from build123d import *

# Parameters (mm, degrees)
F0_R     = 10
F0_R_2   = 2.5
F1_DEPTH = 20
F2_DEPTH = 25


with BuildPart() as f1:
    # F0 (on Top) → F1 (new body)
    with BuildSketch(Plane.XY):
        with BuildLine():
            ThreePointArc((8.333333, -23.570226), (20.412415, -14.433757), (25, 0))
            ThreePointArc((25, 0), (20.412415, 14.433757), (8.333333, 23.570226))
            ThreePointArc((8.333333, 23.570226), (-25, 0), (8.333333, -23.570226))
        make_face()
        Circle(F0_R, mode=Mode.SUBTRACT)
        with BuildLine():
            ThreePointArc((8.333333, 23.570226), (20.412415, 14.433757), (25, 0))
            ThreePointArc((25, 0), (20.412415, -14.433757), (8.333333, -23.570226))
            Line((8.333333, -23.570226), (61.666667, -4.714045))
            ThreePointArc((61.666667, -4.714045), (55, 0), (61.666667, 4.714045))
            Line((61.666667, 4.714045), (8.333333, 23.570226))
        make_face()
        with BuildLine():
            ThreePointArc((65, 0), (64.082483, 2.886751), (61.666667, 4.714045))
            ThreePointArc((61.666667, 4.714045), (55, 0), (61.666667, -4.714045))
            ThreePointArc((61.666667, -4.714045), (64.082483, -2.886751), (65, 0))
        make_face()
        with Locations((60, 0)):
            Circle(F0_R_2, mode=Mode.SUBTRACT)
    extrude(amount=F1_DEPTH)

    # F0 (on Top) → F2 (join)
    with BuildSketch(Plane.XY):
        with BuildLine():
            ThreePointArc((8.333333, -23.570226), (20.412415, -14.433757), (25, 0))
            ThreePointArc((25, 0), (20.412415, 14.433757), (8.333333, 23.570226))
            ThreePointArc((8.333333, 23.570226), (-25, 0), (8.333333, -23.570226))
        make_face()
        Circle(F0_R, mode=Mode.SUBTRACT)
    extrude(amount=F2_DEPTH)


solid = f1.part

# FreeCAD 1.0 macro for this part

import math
import FreeCAD as App
import Part
import Sketcher

V = App.Vector
Q = App.Units.Quantity

doc = App.newDocument("Part")
body = doc.addObject("PartDesign::Body", "Body")

sketch1 = body.newObject("Sketcher::SketchObject", "Sketch")
sketch1.AttachmentSupport = (doc.getObject("XY_Plane"), [""])
sketch1.MapMode = "FlatFace"
sketch1.addGeometry(Part.ArcOfCircle(Part.Circle(V(0, 0, 0), V(0, 0, 1), 25), math.radians(71), math.radians(289)), False)
sketch1.addGeometry(Part.LineSegment(V(8.3, -23.6, 0), V(61.7, -4.7, 0)), False)
sketch1.addGeometry(Part.ArcOfCircle(Part.Circle(V(60, 0, 0), V(0, 0, 1), 5), math.radians(-71), math.radians(0)), False)
sketch1.addGeometry(Part.ArcOfCircle(Part.Circle(V(60, 0, 0), V(0, 0, 1), 5), math.radians(0), math.radians(71)), False)
sketch1.addGeometry(Part.LineSegment(V(61.7, 4.7, 0), V(8.3, 23.6, 0)), False)
sketch1.addGeometry(Part.Circle(V(0, 0, 0), V(0, 0, 1), 10), False)
sketch1.addGeometry(Part.Circle(V(60, 0, 0), V(0, 0, 1), 2.5), False)
sketch1.addConstraint(Sketcher.Constraint("Tangent", 0, 2, 1, 1))
sketch1.addConstraint(Sketcher.Constraint("Tangent", 1, 2, 2, 1))
sketch1.addConstraint(Sketcher.Constraint("Tangent", 2, 2, 3, 1))
sketch1.addConstraint(Sketcher.Constraint("Tangent", 3, 2, 4, 1))
sketch1.addConstraint(Sketcher.Constraint("Tangent", 4, 2, 0, 1))
sketch1.addConstraint(Sketcher.Constraint("Coincident", 0, 3, -1, 1))
sketch1.addConstraint(Sketcher.Constraint("Coincident", 5, 3, -1, 1))
sketch1.addConstraint(Sketcher.Constraint("Coincident", 6, 3, 2, 3))
sketch1.addConstraint(Sketcher.Constraint("Equal", 2, 3))
sketch1.addConstraint(Sketcher.Constraint("PointOnObject", 2, 3, -1))
sketch1.addConstraint(Sketcher.Constraint("PointOnObject", 2, 2, -1))
sketch1.addConstraint(Sketcher.Constraint("Diameter", 5, Q("20 mm")))
sketch1.addConstraint(Sketcher.Constraint("Diameter", 6, Q("5 mm")))
sketch1.addConstraint(Sketcher.Constraint("Radius", 0, Q("25 mm")))
sketch1.addConstraint(Sketcher.Constraint("Radius", 2, Q("5 mm")))
sketch1.addConstraint(Sketcher.Constraint("DistanceX", -1, 1, 2, 3, Q("60 mm")))
pad1 = body.newObject("PartDesign::Pad", "Pad")
pad1.Profile = sketch1
pad1.Length = 20

sketch2 = body.newObject("Sketcher::SketchObject", "Sketch001")
sketch2.AttachmentSupport = (doc.getObject("XY_Plane"), [""])
sketch2.MapMode = "FlatFace"
sketch2.addGeometry(Part.ArcOfCircle(Part.Circle(V(0, 0, 0), V(0, 0, 1), 25), math.radians(-71), math.radians(0)), False)
sketch2.addGeometry(Part.ArcOfCircle(Part.Circle(V(0, 0, 0), V(0, 0, 1), 25), math.radians(0), math.radians(71)), False)
sketch2.addGeometry(Part.ArcOfCircle(Part.Circle(V(0, 0, 0), V(0, 0, 1), 25), math.radians(71), math.radians(289)), False)
sketch2.addGeometry(Part.Circle(V(0, 0, 0), V(0, 0, 1), 10), False)
sketch2.addConstraint(Sketcher.Constraint("Tangent", 0, 2, 1, 1))
sketch2.addConstraint(Sketcher.Constraint("Tangent", 1, 2, 2, 1))
sketch2.addConstraint(Sketcher.Constraint("Tangent", 2, 2, 0, 1))
sketch2.addConstraint(Sketcher.Constraint("Coincident", 0, 3, -1, 1))
sketch2.addConstraint(Sketcher.Constraint("Coincident", 3, 3, -1, 1))
sketch2.addConstraint(Sketcher.Constraint("PointOnObject", 0, 2, -1))
sketch2.addConstraint(Sketcher.Constraint("Vertical", 1, 2, 2, 2))
sketch2.addConstraint(Sketcher.Constraint("Diameter", 3, Q("20 mm")))
sketch2.addConstraint(Sketcher.Constraint("Radius", 2, Q("25 mm")))
sketch2.addConstraint(Sketcher.Constraint("DistanceX", 1, 3, 1, 2, Q("8.33333 mm")))
pad2 = body.newObject("PartDesign::Pad", "Pad001")
pad2.Profile = sketch2
pad2.Length = 25

doc.recompute()
